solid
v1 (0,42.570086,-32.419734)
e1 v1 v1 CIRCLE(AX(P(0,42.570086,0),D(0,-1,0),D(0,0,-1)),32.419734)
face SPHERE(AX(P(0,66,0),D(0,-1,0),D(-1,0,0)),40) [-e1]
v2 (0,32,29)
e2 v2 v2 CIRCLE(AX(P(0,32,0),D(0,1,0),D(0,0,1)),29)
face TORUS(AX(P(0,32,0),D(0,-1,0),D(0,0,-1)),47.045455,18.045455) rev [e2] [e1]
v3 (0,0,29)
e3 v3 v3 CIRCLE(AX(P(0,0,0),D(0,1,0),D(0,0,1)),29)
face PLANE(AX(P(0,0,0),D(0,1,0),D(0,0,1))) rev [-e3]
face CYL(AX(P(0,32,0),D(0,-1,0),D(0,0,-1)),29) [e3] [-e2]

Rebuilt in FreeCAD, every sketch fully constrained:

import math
import FreeCAD as App
import Part
import Sketcher
from FreeCAD import Vector

doc = App.newDocument("Part")
params = doc.addObject("Spreadsheet::Sheet", "Params")
for row, (alias, value) in enumerate([
    ("sketch1_diameter", "58 mm"),
    ("pad1_length", "32 mm"),
    ("sketch2_radius", "40 mm"),
    ("sketch2_width", "29 mm"),
    ("sketch2_height", "74 mm"),
    ("revolution_angle", "360 deg"),
], start=1):
    params.set(f"A{row}", alias)
    params.set(f"B{row}", "=" + value)
    params.setAlias(f"B{row}", alias)

body = doc.addObject("PartDesign::Body", "Body")

# Sketch on XZ plane
sketch1 = body.newObject("Sketcher::SketchObject", "Sketch")
sketch1.AttachmentSupport = (doc.getObject("XZ_Plane"), [""])
sketch1.MapMode = "FlatFace"
sketch1.addGeometry(Part.Circle(Vector(0, 0, 0), Vector(0, 0, 1), 29), False)
sketch1.addConstraint([
    Sketcher.Constraint("Coincident", 0, 3, -1, 1),
    Sketcher.Constraint("Diameter", 0, 58.0),
])
sketch1.setExpression("Constraints[1]", "Params.sketch1_diameter")
pad1 = body.newObject("PartDesign::Pad", "Pad")
pad1.Profile = sketch1
pad1.setExpression("Length", "Params.pad1_length")
pad1.Reversed = True

# Sketch on XY plane
sketch2 = body.newObject("Sketcher::SketchObject", "Sketch001")
sketch2.AttachmentSupport = (doc.getObject("XY_Plane"), [""])
sketch2.MapMode = "FlatFace"
sketch2.addGeometry([
    Part.LineSegment(Vector(-29, 32, 0), Vector(0, 32, 0)),
    Part.LineSegment(Vector(0, 32, 0), Vector(0, 106, 0)),
    Part.ArcOfCircle(Part.Circle(Vector(0, 66, 0), Vector(0, 0, 1), 40), math.radians(90), math.radians(216)),
    Part.ArcOfCircle(Part.Circle(Vector(-47, 32, 0), Vector(0, 0, 1), 18), math.radians(0), math.radians(36)),
], False)
sketch2.addConstraint([
    Sketcher.Constraint("Coincident", 0, 2, 1, 1),
    Sketcher.Constraint("Coincident", 1, 2, 2, 1),
    Sketcher.Constraint("Tangent", 2, 2, 3, 2),
    Sketcher.Constraint("Coincident", 3, 1, 0, 1),
    Sketcher.Constraint("Horizontal", 0),
    Sketcher.Constraint("Vertical", 1),
    Sketcher.Constraint("PointOnObject", 2, 3, -2),
    Sketcher.Constraint("PointOnObject", 0, 2, -2),
    Sketcher.Constraint("Horizontal", 3, 3, 0, 2),
    Sketcher.Constraint("Radius", 2, 40.0),
    Sketcher.Constraint("DistanceX", 0, 1, 0, 2, 29.0),
    Sketcher.Constraint("DistanceY", 1, 1, 1, 2, 74.0),
    Sketcher.Constraint("DistanceY", -1, 1, 2, 3, 66.0),
])
sketch2.setExpression("Constraints[9]", "Params.sketch2_radius")
sketch2.setExpression("Constraints[10]", "Params.sketch2_width")
sketch2.setExpression("Constraints[11]", "Params.sketch2_height")
revolution = body.newObject("PartDesign::Revolution", "Revolution")
revolution.Profile = sketch2
revolution.ReferenceAxis = (sketch2, ["V_Axis"])
revolution.setExpression("Angle", "Params.revolution_angle")

doc.recompute()
